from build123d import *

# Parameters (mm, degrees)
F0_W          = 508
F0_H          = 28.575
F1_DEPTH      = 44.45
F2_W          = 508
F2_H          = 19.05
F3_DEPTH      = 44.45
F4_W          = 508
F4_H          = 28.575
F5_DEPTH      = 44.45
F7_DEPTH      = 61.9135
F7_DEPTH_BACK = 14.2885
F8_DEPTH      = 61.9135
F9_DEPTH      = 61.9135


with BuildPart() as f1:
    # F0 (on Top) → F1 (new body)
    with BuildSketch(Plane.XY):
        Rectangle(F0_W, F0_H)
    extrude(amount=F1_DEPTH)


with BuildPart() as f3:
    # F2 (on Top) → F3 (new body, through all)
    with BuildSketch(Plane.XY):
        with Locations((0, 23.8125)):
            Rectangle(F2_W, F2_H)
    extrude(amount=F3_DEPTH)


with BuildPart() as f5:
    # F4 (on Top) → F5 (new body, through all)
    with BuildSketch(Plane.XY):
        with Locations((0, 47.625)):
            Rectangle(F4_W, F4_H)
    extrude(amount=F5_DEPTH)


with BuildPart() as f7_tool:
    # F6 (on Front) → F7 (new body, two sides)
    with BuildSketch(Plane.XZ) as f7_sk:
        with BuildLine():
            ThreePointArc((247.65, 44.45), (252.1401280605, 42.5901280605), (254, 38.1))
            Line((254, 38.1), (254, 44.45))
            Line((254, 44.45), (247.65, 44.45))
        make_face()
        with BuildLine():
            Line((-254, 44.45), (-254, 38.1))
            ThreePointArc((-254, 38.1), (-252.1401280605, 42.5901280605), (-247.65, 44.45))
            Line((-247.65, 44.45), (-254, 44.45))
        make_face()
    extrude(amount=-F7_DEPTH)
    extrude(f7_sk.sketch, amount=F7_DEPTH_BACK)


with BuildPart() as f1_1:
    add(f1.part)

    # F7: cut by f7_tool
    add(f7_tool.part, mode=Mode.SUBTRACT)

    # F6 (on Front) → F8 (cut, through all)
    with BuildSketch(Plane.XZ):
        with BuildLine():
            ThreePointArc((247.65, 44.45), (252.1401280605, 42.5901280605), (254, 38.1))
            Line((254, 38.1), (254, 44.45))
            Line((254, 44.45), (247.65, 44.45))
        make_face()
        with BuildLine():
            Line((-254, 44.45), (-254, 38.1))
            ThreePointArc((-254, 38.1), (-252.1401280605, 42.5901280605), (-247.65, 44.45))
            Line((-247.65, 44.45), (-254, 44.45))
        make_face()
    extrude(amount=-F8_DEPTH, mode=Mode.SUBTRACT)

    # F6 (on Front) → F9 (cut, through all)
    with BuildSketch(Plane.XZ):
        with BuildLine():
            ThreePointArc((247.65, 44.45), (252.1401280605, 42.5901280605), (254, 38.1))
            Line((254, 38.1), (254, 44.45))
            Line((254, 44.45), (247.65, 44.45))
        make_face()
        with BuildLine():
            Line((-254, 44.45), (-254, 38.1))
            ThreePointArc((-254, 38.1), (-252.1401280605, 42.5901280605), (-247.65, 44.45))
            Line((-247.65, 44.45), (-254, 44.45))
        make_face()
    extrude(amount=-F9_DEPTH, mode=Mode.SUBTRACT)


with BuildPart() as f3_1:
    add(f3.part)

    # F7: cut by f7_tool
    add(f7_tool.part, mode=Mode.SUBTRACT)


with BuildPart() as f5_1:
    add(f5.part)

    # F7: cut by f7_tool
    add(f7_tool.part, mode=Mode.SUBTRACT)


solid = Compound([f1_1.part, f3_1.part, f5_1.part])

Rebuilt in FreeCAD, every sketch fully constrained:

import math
import FreeCAD as App
import Part
import Sketcher
Q = App.Units.Quantity


def add_polygon(sketch, points):
    """Adds a closed chain of lines whose ends are joined by coincident constraints."""
    first, n = sketch.GeometryCount, len(points)
    for a, b in zip(points, points[1:] + points[:1]):
        sketch.addGeometry(Part.LineSegment(App.Vector(*a, 0), App.Vector(*b, 0)), False)
    for i in range(n):
        sketch.addConstraint(Sketcher.Constraint("Coincident", first + i, 2, first + (i + 1) % n, 1))

doc = App.newDocument("Part")
body = doc.addObject("PartDesign::Body", "Body")

# Sketch on XY plane
sketch1 = doc.addObject("Sketcher::SketchObject", "Sketch")
body.addObject(sketch1)
sketch1.AttachmentSupport = (doc.XY_Plane, [""])
sketch1.MapMode = "FlatFace"
add_polygon(sketch1, [(-254, 14), (-254, -14), (254, -14), (254, 14)])  # lines 0-3
sketch1.addConstraint(Sketcher.Constraint("Vertical", 0))
sketch1.addConstraint(Sketcher.Constraint("Horizontal", 1))
sketch1.addConstraint(Sketcher.Constraint("Vertical", 2))
sketch1.addConstraint(Sketcher.Constraint("Horizontal", 3))
sketch1.addConstraint(Sketcher.Constraint("Symmetric", 0, 2, 2, 2, -1, 1))
sketch1.addConstraint(Sketcher.Constraint("DistanceX", 1, 1, 1, 2, Q("20 in")))
sketch1.addConstraint(Sketcher.Constraint("DistanceY", 0, 2, 0, 1, Q("1.125 in")))
pad1 = doc.addObject("PartDesign::Pad", "Pad")
body.addObject(pad1)
pad1.Profile = sketch1
pad1.Length = Q("1.75 in")
body2 = doc.addObject("PartDesign::Body", "Body001")

# Sketch on XY plane
sketch2 = doc.addObject("Sketcher::SketchObject", "Sketch001")
body2.addObject(sketch2)
sketch2.AttachmentSupport = (doc.getObject("XY_Plane001"), [""])
sketch2.MapMode = "FlatFace"
add_polygon(sketch2, [(-254, 33), (-254, 14), (254, 14), (254, 33)])  # lines 0-3
sketch2.addConstraint(Sketcher.Constraint("Vertical", 0))
sketch2.addConstraint(Sketcher.Constraint("Horizontal", 1))
sketch2.addConstraint(Sketcher.Constraint("Vertical", 2))
sketch2.addConstraint(Sketcher.Constraint("Horizontal", 3))
sketch2.addConstraint(Sketcher.Constraint("DistanceX", 1, 1, 1, 2, Q("20 in")))
sketch2.addConstraint(Sketcher.Constraint("DistanceX", 0, 2, -1, 1, Q("10 in")))
sketch2.addConstraint(Sketcher.Constraint("DistanceY", 0, 2, 0, 1, Q("0.75 in")))
sketch2.addConstraint(Sketcher.Constraint("DistanceY", -1, 1, 0, 2, Q("0.5625 in")))
pad2 = doc.addObject("PartDesign::Pad", "Pad001")
body2.addObject(pad2)
pad2.Profile = sketch2
pad2.Length = Q("1.75 in")
body3 = doc.addObject("PartDesign::Body", "Body002")

# Sketch on XY plane
sketch3 = doc.addObject("Sketcher::SketchObject", "Sketch002")
body3.addObject(sketch3)
sketch3.AttachmentSupport = (doc.getObject("XY_Plane002"), [""])
sketch3.MapMode = "FlatFace"
add_polygon(sketch3, [(-254, 62), (-254, 33), (254, 33), (254, 62)])  # lines 0-3
sketch3.addConstraint(Sketcher.Constraint("Vertical", 0))
sketch3.addConstraint(Sketcher.Constraint("Horizontal", 1))
sketch3.addConstraint(Sketcher.Constraint("Vertical", 2))
sketch3.addConstraint(Sketcher.Constraint("Horizontal", 3))
sketch3.addConstraint(Sketcher.Constraint("DistanceX", 1, 1, 1, 2, Q("20 in")))
sketch3.addConstraint(Sketcher.Constraint("DistanceX", 0, 2, -1, 1, Q("10 in")))
sketch3.addConstraint(Sketcher.Constraint("DistanceY", 0, 2, 0, 1, Q("1.125 in")))
sketch3.addConstraint(Sketcher.Constraint("DistanceY", -1, 1, 0, 2, Q("1.3125 in")))
pad3 = doc.addObject("PartDesign::Pad", "Pad002")
body3.addObject(pad3)
pad3.Profile = sketch3
pad3.Length = Q("1.75 in")
body4 = doc.addObject("PartDesign::Body", "Body003")
body4.AllowCompound = True

# Sketch on XZ plane
sketch4 = doc.addObject("Sketcher::SketchObject", "Sketch003")
body4.addObject(sketch4)
sketch4.AttachmentSupport = (doc.getObject("XZ_Plane003"), [""])
sketch4.MapMode = "FlatFace"
sketch4.addGeometry(Part.ArcOfCircle(Part.Circle(App.Vector(248, 38, 0), App.Vector(0, 0, 1), 6), math.radians(0), math.radians(90)), False)
sketch4.addGeometry(Part.LineSegment(App.Vector(254, 38, 0), App.Vector(254, 44, 0)), False)
sketch4.addGeometry(Part.LineSegment(App.Vector(254, 44, 0), App.Vector(248, 44, 0)), False)
sketch4.addGeometry(Part.LineSegment(App.Vector(-254, 44, 0), App.Vector(-254, 38, 0)), False)
sketch4.addGeometry(Part.ArcOfCircle(Part.Circle(App.Vector(-248, 38, 0), App.Vector(0, 0, 1), 6), math.radians(90), math.radians(180)), False)
sketch4.addGeometry(Part.LineSegment(App.Vector(-248, 44, 0), App.Vector(-254, 44, 0)), False)
sketch4.addConstraint(Sketcher.Constraint("Tangent", 0, 1, 1, 1))
sketch4.addConstraint(Sketcher.Constraint("Coincident", 1, 2, 2, 1))
sketch4.addConstraint(Sketcher.Constraint("Tangent", 2, 2, 0, 2))
sketch4.addConstraint(Sketcher.Constraint("Tangent", 3, 2, 4, 2))
sketch4.addConstraint(Sketcher.Constraint("Tangent", 4, 1, 5, 1))
sketch4.addConstraint(Sketcher.Constraint("Coincident", 5, 2, 3, 1))
sketch4.addConstraint(Sketcher.Constraint("Vertical", 1))
sketch4.addConstraint(Sketcher.Constraint("Horizontal", 2))
sketch4.addConstraint(Sketcher.Constraint("Vertical", 3))
sketch4.addConstraint(Sketcher.Constraint("Horizontal", 5))
sketch4.addConstraint(Sketcher.Constraint("Equal", 0, 4))
sketch4.addConstraint(Sketcher.Constraint("Symmetric", 0, 3, 4, 3, -2))
sketch4.addConstraint(Sketcher.Constraint("Radius", 0, Q("0.25 in")))
sketch4.addConstraint(Sketcher.Constraint("DistanceX", -1, 1, 0, 1, Q("10 in")))
sketch4.addConstraint(Sketcher.Constraint("DistanceY", -1, 1, 0, 3, Q("1.5 in")))
pad4 = doc.addObject("PartDesign::Pad", "Pad003")
body4.addObject(pad4)
pad4.Profile = sketch4
pad4.Type = "TwoLengths"
pad4.Length = 61.9135
pad4.Length2 = 14.2885
pad4.Reversed = True
doc.recompute()

body5 = doc.addObject("PartDesign::Body", "Body004")
body5.BaseFeature = body4
boolean = doc.addObject("PartDesign::Boolean", "Boolean")
body.addObject(boolean)
boolean.Type = "Cut"
boolean.addObjects([body5])
doc.recompute()

# Sketch on XZ plane
sketch5 = doc.addObject("Sketcher::SketchObject", "Sketch004")
body.addObject(sketch5)
sketch5.AttachmentSupport = (doc.XZ_Plane, [""])
sketch5.MapMode = "FlatFace"
sketch5.addGeometry(Part.ArcOfCircle(Part.Circle(App.Vector(248, 38, 0), App.Vector(0, 0, 1), 6), math.radians(0), math.radians(90)), False)
sketch5.addGeometry(Part.LineSegment(App.Vector(254, 38, 0), App.Vector(254, 44, 0)), False)
sketch5.addGeometry(Part.LineSegment(App.Vector(254, 44, 0), App.Vector(248, 44, 0)), False)
sketch5.addGeometry(Part.LineSegment(App.Vector(-254, 44, 0), App.Vector(-254, 38, 0)), False)
sketch5.addGeometry(Part.ArcOfCircle(Part.Circle(App.Vector(-248, 38, 0), App.Vector(0, 0, 1), 6), math.radians(90), math.radians(180)), False)
sketch5.addGeometry(Part.LineSegment(App.Vector(-248, 44, 0), App.Vector(-254, 44, 0)), False)
sketch5.addConstraint(Sketcher.Constraint("Tangent", 0, 1, 1, 1))
sketch5.addConstraint(Sketcher.Constraint("Coincident", 1, 2, 2, 1))
sketch5.addConstraint(Sketcher.Constraint("Tangent", 2, 2, 0, 2))
sketch5.addConstraint(Sketcher.Constraint("Tangent", 3, 2, 4, 2))
sketch5.addConstraint(Sketcher.Constraint("Tangent", 4, 1, 5, 1))
sketch5.addConstraint(Sketcher.Constraint("Coincident", 5, 2, 3, 1))
sketch5.addConstraint(Sketcher.Constraint("Vertical", 1))
sketch5.addConstraint(Sketcher.Constraint("Horizontal", 2))
sketch5.addConstraint(Sketcher.Constraint("Vertical", 3))
sketch5.addConstraint(Sketcher.Constraint("Horizontal", 5))
sketch5.addConstraint(Sketcher.Constraint("Equal", 0, 4))
sketch5.addConstraint(Sketcher.Constraint("Symmetric", 0, 3, 4, 3, -2))
sketch5.addConstraint(Sketcher.Constraint("Radius", 0, Q("0.25 in")))
sketch5.addConstraint(Sketcher.Constraint("DistanceX", -1, 1, 0, 1, Q("10 in")))
sketch5.addConstraint(Sketcher.Constraint("DistanceY", -1, 1, 0, 3, Q("1.5 in")))
pocket1 = doc.addObject("PartDesign::Pocket", "Pocket")
body.addObject(pocket1)
pocket1.Profile = sketch5
pocket1.Type = "ThroughAll"

# Sketch on XZ plane
sketch6 = doc.addObject("Sketcher::SketchObject", "Sketch005")
body.addObject(sketch6)
sketch6.AttachmentSupport = (doc.XZ_Plane, [""])
sketch6.MapMode = "FlatFace"
sketch6.addGeometry(Part.ArcOfCircle(Part.Circle(App.Vector(248, 38, 0), App.Vector(0, 0, 1), 6), math.radians(0), math.radians(90)), False)
sketch6.addGeometry(Part.LineSegment(App.Vector(254, 38, 0), App.Vector(254, 44, 0)), False)
sketch6.addGeometry(Part.LineSegment(App.Vector(254, 44, 0), App.Vector(248, 44, 0)), False)
sketch6.addGeometry(Part.LineSegment(App.Vector(-254, 44, 0), App.Vector(-254, 38, 0)), False)
sketch6.addGeometry(Part.ArcOfCircle(Part.Circle(App.Vector(-248, 38, 0), App.Vector(0, 0, 1), 6), math.radians(90), math.radians(180)), False)
sketch6.addGeometry(Part.LineSegment(App.Vector(-248, 44, 0), App.Vector(-254, 44, 0)), False)
sketch6.addConstraint(Sketcher.Constraint("Tangent", 0, 1, 1, 1))
sketch6.addConstraint(Sketcher.Constraint("Coincident", 1, 2, 2, 1))
sketch6.addConstraint(Sketcher.Constraint("Tangent", 2, 2, 0, 2))
sketch6.addConstraint(Sketcher.Constraint("Tangent", 3, 2, 4, 2))
sketch6.addConstraint(Sketcher.Constraint("Tangent", 4, 1, 5, 1))
sketch6.addConstraint(Sketcher.Constraint("Coincident", 5, 2, 3, 1))
sketch6.addConstraint(Sketcher.Constraint("Vertical", 1))
sketch6.addConstraint(Sketcher.Constraint("Horizontal", 2))
sketch6.addConstraint(Sketcher.Constraint("Vertical", 3))
sketch6.addConstraint(Sketcher.Constraint("Horizontal", 5))
sketch6.addConstraint(Sketcher.Constraint("Equal", 0, 4))
sketch6.addConstraint(Sketcher.Constraint("Symmetric", 0, 3, 4, 3, -2))
sketch6.addConstraint(Sketcher.Constraint("Radius", 0, Q("0.25 in")))
sketch6.addConstraint(Sketcher.Constraint("DistanceX", -1, 1, 0, 1, Q("10 in")))
sketch6.addConstraint(Sketcher.Constraint("DistanceY", -1, 1, 0, 3, Q("1.5 in")))
pocket2 = doc.addObject("PartDesign::Pocket", "Pocket001")
body.addObject(pocket2)
pocket2.Profile = sketch6
pocket2.Type = "ThroughAll"
doc.recompute()

body6 = doc.addObject("PartDesign::Body", "Body005")
body6.BaseFeature = body4
boolean2 = doc.addObject("PartDesign::Boolean", "Boolean001")
body2.addObject(boolean2)
boolean2.Type = "Cut"
boolean2.addObjects([body6])
doc.recompute()

boolean3 = doc.addObject("PartDesign::Boolean", "Boolean002")
body3.addObject(boolean3)
boolean3.Type = "Cut"
boolean3.addObjects([body4])

doc.recompute()
